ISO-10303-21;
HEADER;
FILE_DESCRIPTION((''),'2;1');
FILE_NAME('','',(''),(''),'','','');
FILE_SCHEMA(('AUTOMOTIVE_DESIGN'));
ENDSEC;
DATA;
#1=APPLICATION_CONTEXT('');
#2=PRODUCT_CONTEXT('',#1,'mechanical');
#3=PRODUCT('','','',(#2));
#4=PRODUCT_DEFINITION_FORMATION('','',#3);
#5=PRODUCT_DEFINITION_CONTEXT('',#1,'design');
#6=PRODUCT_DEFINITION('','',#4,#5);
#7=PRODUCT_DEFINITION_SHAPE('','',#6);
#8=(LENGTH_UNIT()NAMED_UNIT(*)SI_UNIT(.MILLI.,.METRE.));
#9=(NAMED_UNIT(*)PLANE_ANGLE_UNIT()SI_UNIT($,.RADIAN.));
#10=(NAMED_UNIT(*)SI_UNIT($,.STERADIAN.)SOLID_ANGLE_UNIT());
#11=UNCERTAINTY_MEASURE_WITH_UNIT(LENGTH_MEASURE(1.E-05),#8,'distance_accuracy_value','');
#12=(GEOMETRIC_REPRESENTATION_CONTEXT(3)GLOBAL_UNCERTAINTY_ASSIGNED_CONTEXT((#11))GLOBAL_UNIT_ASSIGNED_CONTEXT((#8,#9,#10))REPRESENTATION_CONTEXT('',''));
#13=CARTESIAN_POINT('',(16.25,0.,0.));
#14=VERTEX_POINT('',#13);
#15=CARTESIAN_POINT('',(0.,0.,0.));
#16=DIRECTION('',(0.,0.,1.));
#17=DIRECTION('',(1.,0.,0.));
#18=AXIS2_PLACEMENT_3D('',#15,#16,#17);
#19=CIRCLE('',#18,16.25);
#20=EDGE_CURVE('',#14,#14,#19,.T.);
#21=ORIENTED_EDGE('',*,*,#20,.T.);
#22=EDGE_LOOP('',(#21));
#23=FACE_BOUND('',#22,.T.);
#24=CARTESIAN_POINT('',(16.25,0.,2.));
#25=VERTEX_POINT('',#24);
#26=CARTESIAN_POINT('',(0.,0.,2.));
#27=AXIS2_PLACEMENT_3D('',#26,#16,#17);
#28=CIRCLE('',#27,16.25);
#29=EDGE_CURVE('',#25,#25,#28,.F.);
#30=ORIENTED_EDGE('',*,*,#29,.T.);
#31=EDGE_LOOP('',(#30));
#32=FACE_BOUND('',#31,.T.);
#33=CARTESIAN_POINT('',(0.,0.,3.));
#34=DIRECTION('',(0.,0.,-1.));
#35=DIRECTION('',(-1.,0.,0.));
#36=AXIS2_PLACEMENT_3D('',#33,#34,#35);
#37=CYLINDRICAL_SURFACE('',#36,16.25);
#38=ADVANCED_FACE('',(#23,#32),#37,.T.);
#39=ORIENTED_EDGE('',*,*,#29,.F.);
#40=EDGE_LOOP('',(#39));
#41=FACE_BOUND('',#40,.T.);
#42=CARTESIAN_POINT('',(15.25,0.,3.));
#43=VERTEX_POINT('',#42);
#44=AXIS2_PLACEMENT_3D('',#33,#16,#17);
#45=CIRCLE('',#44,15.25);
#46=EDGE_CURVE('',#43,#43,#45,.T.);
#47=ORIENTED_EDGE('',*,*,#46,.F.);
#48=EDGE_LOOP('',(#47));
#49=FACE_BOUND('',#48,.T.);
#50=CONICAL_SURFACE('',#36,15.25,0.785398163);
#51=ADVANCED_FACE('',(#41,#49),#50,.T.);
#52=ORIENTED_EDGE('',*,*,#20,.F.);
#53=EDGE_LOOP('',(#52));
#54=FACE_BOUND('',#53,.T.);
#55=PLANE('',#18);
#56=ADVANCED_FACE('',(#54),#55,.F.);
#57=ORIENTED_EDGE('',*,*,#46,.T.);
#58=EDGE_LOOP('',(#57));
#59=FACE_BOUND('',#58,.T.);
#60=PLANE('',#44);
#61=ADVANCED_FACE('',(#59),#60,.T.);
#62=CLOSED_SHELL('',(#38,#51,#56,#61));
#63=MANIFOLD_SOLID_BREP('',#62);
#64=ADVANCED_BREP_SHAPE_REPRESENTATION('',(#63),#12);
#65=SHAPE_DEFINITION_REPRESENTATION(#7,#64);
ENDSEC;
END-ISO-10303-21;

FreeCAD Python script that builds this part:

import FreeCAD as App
import Part
import Sketcher


def edges_at(feature, points):
    """Names of the edges that pass closest to the given points."""
    edges = feature.Shape.Edges
    near = lambda p: min(range(len(edges)), key=lambda i: edges[i].distToShape(Part.Vertex(*p))[0])
    return sorted({f"Edge{near(p) + 1}" for p in points})

doc = App.newDocument("Part")
body = doc.addObject("PartDesign::Body", "Body")

# Sketch on XY plane
sketch1 = body.newObject("Sketcher::SketchObject", "Sketch")
sketch1.AttachmentSupport = (doc.getObject("XY_Plane"), [""])
sketch1.MapMode = "FlatFace"
sketch1.addGeometry(Part.Circle(App.Vector(0, 0, 0), App.Vector(0, 0, 1), 16.25), False)
sketch1.addConstraint(Sketcher.Constraint("Coincident", 0, 3, -1, 1))
sketch1.addConstraint(Sketcher.Constraint("Diameter", 0, 32.5))
pad1 = body.newObject("PartDesign::Pad", "Pad")
pad1.Profile = sketch1
pad1.Length = 3
doc.recompute()

chamfer = body.newObject("PartDesign::Chamfer", "Chamfer")
chamfer.Base = (pad1, edges_at(pad1, [(-16.25, 0, 3)]))
chamfer.Size = 1

doc.recompute()
